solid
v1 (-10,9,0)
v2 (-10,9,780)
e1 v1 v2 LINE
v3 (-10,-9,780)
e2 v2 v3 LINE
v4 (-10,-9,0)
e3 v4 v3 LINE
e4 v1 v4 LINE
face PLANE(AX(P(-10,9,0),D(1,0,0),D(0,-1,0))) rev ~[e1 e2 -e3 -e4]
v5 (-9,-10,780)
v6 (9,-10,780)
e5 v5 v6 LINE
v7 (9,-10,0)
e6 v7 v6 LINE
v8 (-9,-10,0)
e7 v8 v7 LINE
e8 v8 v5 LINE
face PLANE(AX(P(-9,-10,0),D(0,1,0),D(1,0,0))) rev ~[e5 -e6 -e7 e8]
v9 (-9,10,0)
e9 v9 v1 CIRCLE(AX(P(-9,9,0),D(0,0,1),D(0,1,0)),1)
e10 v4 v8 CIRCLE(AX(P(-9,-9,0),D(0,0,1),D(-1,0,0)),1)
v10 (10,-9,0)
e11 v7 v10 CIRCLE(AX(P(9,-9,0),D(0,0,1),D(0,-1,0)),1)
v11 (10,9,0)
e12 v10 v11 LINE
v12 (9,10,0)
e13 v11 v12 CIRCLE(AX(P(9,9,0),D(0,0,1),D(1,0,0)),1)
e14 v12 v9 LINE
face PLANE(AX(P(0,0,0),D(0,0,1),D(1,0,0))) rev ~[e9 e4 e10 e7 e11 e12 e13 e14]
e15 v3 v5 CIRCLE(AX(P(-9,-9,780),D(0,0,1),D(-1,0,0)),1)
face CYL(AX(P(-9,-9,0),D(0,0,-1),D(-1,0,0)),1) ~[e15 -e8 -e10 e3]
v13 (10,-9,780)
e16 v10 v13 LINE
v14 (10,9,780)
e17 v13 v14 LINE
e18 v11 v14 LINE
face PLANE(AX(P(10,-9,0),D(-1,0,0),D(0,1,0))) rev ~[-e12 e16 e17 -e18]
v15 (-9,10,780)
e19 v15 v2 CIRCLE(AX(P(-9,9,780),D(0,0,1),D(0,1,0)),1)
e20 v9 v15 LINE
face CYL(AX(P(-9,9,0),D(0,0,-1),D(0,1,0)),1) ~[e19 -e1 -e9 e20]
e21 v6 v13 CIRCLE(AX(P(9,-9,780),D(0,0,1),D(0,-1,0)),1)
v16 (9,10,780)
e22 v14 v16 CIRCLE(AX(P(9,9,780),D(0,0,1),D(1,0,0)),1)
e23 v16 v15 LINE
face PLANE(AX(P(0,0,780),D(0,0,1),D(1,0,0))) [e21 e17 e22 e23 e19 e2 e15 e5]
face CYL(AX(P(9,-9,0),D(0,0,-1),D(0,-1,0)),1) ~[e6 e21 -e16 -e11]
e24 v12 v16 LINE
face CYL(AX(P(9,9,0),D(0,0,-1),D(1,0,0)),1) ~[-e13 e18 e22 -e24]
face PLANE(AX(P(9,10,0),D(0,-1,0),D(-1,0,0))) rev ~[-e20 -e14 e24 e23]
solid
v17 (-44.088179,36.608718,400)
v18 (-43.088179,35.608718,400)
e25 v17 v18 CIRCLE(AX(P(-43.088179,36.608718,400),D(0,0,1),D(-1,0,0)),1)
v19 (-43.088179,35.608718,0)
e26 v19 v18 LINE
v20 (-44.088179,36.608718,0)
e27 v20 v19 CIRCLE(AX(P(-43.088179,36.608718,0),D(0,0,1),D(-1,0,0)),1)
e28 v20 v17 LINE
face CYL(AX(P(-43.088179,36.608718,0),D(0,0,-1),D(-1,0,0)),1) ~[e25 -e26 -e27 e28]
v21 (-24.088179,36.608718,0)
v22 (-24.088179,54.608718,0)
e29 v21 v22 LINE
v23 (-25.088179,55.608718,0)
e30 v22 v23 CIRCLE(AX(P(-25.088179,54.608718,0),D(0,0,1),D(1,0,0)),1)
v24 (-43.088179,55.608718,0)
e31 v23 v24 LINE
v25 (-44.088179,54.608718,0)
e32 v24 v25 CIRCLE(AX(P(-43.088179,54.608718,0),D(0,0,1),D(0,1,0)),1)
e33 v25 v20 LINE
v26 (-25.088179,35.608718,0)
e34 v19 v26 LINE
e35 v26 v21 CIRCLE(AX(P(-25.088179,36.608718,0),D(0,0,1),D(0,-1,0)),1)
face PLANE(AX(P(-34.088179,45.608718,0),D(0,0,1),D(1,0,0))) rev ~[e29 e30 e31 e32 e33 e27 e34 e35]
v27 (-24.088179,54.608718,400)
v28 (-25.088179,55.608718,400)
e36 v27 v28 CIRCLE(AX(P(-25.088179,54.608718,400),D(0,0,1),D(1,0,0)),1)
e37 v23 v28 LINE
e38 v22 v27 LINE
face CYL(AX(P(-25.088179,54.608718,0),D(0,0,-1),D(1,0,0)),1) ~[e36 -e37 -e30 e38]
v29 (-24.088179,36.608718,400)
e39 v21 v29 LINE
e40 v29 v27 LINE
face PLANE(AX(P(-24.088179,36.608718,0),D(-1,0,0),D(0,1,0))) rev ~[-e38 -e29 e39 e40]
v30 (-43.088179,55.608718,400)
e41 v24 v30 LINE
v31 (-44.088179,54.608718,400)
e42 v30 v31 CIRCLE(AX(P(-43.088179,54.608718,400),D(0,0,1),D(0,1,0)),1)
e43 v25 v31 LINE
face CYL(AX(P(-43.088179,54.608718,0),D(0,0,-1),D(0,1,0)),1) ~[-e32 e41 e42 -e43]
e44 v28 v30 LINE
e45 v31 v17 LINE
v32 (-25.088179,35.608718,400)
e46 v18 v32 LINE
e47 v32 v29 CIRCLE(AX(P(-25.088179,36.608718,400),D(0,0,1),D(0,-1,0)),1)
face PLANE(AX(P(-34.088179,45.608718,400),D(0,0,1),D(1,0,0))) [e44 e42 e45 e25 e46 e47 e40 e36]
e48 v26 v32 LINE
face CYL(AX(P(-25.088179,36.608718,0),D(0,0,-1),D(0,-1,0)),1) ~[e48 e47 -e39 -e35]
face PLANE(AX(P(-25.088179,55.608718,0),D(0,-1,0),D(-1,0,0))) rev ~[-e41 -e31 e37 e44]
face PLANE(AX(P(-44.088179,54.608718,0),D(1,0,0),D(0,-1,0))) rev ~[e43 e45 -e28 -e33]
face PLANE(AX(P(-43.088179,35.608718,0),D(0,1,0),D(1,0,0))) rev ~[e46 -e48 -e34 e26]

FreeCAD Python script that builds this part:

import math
import FreeCAD as App
import Part
import Sketcher
Q = App.Units.Quantity

doc = App.newDocument("Part")
body = doc.addObject("PartDesign::Body", "Body")

sketch1 = body.newObject("Sketcher::SketchObject", "Sketch")
sketch1.AttachmentSupport = (doc.getObject("XY_Plane"), [""])
sketch1.MapMode = "FlatFace"
sketch1.addGeometry(Part.LineSegment(App.Vector(-9, -10, 0), App.Vector(9, -10, 0)), False)
sketch1.addGeometry(Part.ArcOfCircle(Part.Circle(App.Vector(9, -9, 0), App.Vector(0, 0, 1), 1), math.radians(-90), math.radians(0)), False)
sketch1.addGeometry(Part.LineSegment(App.Vector(10, -9, 0), App.Vector(10, 9, 0)), False)
sketch1.addGeometry(Part.ArcOfCircle(Part.Circle(App.Vector(9, 9, 0), App.Vector(0, 0, 1), 1), math.radians(0), math.radians(90)), False)
sketch1.addGeometry(Part.LineSegment(App.Vector(9, 10, 0), App.Vector(-9, 10, 0)), False)
sketch1.addGeometry(Part.ArcOfCircle(Part.Circle(App.Vector(-9, 9, 0), App.Vector(0, 0, 1), 1), math.radians(90), math.radians(180)), False)
sketch1.addGeometry(Part.LineSegment(App.Vector(-10, 9, 0), App.Vector(-10, -9, 0)), False)
sketch1.addGeometry(Part.ArcOfCircle(Part.Circle(App.Vector(-9, -9, 0), App.Vector(0, 0, 1), 1), math.radians(180), math.radians(270)), False)
sketch1.addConstraint(Sketcher.Constraint("Tangent", 0, 2, 1, 1))
sketch1.addConstraint(Sketcher.Constraint("Tangent", 1, 2, 2, 1))
sketch1.addConstraint(Sketcher.Constraint("Tangent", 2, 2, 3, 1))
sketch1.addConstraint(Sketcher.Constraint("Tangent", 3, 2, 4, 1))
sketch1.addConstraint(Sketcher.Constraint("Tangent", 4, 2, 5, 1))
sketch1.addConstraint(Sketcher.Constraint("Tangent", 5, 2, 6, 1))
sketch1.addConstraint(Sketcher.Constraint("Tangent", 6, 2, 7, 1))
sketch1.addConstraint(Sketcher.Constraint("Tangent", 7, 2, 0, 1))
sketch1.addConstraint(Sketcher.Constraint("Horizontal", 0))
sketch1.addConstraint(Sketcher.Constraint("Vertical", 2))
sketch1.addConstraint(Sketcher.Constraint("Horizontal", 4))
sketch1.addConstraint(Sketcher.Constraint("Vertical", 6))
sketch1.addConstraint(Sketcher.Constraint("Equal", 1, 3))
sketch1.addConstraint(Sketcher.Constraint("Equal", 3, 5))
sketch1.addConstraint(Sketcher.Constraint("Equal", 5, 7))
sketch1.addConstraint(Sketcher.Constraint("Symmetric", 1, 3, 5, 3, -1, 1))
sketch1.addConstraint(Sketcher.Constraint("Equal", 4, 2))
sketch1.addConstraint(Sketcher.Constraint("Radius", 1, Q("1 mm")))
sketch1.addConstraint(Sketcher.Constraint("DistanceX", 0, 1, 0, 2, Q("18 mm")))
pad1 = body.newObject("PartDesign::Pad", "Pad")
pad1.Profile = sketch1
pad1.Length = 780
body2 = doc.addObject("PartDesign::Body", "Body001")

sketch2 = body2.newObject("Sketcher::SketchObject", "Sketch001")
sketch2.AttachmentSupport = (doc.getObject("XY_Plane001"), [""])
sketch2.MapMode = "FlatFace"
sketch2.addGeometry(Part.LineSegment(App.Vector(-43.1, 35.6, 0), App.Vector(-25.1, 35.6, 0)), False)
sketch2.addGeometry(Part.ArcOfCircle(Part.Circle(App.Vector(-25.1, 36.6, 0), App.Vector(0, 0, 1), 1), math.radians(-90), math.radians(0)), False)
sketch2.addGeometry(Part.LineSegment(App.Vector(-24.1, 36.6, 0), App.Vector(-24.1, 54.6, 0)), False)
sketch2.addGeometry(Part.ArcOfCircle(Part.Circle(App.Vector(-25.1, 54.6, 0), App.Vector(0, 0, 1), 1), math.radians(0), math.radians(90)), False)
sketch2.addGeometry(Part.LineSegment(App.Vector(-25.1, 55.6, 0), App.Vector(-43.1, 55.6, 0)), False)
sketch2.addGeometry(Part.ArcOfCircle(Part.Circle(App.Vector(-43.1, 54.6, 0), App.Vector(0, 0, 1), 1), math.radians(90), math.radians(180)), False)
sketch2.addGeometry(Part.LineSegment(App.Vector(-44.1, 54.6, 0), App.Vector(-44.1, 36.6, 0)), False)
sketch2.addGeometry(Part.ArcOfCircle(Part.Circle(App.Vector(-43.1, 36.6, 0), App.Vector(0, 0, 1), 1), math.radians(180), math.radians(270)), False)
sketch2.addConstraint(Sketcher.Constraint("Tangent", 0, 2, 1, 1))
sketch2.addConstraint(Sketcher.Constraint("Tangent", 1, 2, 2, 1))
sketch2.addConstraint(Sketcher.Constraint("Tangent", 2, 2, 3, 1))
sketch2.addConstraint(Sketcher.Constraint("Tangent", 3, 2, 4, 1))
sketch2.addConstraint(Sketcher.Constraint("Tangent", 4, 2, 5, 1))
sketch2.addConstraint(Sketcher.Constraint("Tangent", 5, 2, 6, 1))
sketch2.addConstraint(Sketcher.Constraint("Tangent", 6, 2, 7, 1))
sketch2.addConstraint(Sketcher.Constraint("Tangent", 7, 2, 0, 1))
sketch2.addConstraint(Sketcher.Constraint("Horizontal", 0))
sketch2.addConstraint(Sketcher.Constraint("Vertical", 2))
sketch2.addConstraint(Sketcher.Constraint("Horizontal", 4))
sketch2.addConstraint(Sketcher.Constraint("Vertical", 6))
sketch2.addConstraint(Sketcher.Constraint("Equal", 1, 3))
sketch2.addConstraint(Sketcher.Constraint("Equal", 3, 5))
sketch2.addConstraint(Sketcher.Constraint("Equal", 5, 7))
sketch2.addConstraint(Sketcher.Constraint("Equal", 4, 2))
sketch2.addConstraint(Sketcher.Constraint("Radius", 1, Q("1 mm")))
sketch2.addConstraint(Sketcher.Constraint("DistanceX", 0, 1, 0, 2, Q("18 mm")))
sketch2.addConstraint(Sketcher.Constraint("DistanceX", 1, 3, -1, 1, Q("25.088179 mm")))
sketch2.addConstraint(Sketcher.Constraint("DistanceY", -1, 1, 1, 3, Q("36.608718 mm")))
pad2 = body2.newObject("PartDesign::Pad", "Pad001")
pad2.Profile = sketch2
pad2.Length = 400

doc.recompute()
